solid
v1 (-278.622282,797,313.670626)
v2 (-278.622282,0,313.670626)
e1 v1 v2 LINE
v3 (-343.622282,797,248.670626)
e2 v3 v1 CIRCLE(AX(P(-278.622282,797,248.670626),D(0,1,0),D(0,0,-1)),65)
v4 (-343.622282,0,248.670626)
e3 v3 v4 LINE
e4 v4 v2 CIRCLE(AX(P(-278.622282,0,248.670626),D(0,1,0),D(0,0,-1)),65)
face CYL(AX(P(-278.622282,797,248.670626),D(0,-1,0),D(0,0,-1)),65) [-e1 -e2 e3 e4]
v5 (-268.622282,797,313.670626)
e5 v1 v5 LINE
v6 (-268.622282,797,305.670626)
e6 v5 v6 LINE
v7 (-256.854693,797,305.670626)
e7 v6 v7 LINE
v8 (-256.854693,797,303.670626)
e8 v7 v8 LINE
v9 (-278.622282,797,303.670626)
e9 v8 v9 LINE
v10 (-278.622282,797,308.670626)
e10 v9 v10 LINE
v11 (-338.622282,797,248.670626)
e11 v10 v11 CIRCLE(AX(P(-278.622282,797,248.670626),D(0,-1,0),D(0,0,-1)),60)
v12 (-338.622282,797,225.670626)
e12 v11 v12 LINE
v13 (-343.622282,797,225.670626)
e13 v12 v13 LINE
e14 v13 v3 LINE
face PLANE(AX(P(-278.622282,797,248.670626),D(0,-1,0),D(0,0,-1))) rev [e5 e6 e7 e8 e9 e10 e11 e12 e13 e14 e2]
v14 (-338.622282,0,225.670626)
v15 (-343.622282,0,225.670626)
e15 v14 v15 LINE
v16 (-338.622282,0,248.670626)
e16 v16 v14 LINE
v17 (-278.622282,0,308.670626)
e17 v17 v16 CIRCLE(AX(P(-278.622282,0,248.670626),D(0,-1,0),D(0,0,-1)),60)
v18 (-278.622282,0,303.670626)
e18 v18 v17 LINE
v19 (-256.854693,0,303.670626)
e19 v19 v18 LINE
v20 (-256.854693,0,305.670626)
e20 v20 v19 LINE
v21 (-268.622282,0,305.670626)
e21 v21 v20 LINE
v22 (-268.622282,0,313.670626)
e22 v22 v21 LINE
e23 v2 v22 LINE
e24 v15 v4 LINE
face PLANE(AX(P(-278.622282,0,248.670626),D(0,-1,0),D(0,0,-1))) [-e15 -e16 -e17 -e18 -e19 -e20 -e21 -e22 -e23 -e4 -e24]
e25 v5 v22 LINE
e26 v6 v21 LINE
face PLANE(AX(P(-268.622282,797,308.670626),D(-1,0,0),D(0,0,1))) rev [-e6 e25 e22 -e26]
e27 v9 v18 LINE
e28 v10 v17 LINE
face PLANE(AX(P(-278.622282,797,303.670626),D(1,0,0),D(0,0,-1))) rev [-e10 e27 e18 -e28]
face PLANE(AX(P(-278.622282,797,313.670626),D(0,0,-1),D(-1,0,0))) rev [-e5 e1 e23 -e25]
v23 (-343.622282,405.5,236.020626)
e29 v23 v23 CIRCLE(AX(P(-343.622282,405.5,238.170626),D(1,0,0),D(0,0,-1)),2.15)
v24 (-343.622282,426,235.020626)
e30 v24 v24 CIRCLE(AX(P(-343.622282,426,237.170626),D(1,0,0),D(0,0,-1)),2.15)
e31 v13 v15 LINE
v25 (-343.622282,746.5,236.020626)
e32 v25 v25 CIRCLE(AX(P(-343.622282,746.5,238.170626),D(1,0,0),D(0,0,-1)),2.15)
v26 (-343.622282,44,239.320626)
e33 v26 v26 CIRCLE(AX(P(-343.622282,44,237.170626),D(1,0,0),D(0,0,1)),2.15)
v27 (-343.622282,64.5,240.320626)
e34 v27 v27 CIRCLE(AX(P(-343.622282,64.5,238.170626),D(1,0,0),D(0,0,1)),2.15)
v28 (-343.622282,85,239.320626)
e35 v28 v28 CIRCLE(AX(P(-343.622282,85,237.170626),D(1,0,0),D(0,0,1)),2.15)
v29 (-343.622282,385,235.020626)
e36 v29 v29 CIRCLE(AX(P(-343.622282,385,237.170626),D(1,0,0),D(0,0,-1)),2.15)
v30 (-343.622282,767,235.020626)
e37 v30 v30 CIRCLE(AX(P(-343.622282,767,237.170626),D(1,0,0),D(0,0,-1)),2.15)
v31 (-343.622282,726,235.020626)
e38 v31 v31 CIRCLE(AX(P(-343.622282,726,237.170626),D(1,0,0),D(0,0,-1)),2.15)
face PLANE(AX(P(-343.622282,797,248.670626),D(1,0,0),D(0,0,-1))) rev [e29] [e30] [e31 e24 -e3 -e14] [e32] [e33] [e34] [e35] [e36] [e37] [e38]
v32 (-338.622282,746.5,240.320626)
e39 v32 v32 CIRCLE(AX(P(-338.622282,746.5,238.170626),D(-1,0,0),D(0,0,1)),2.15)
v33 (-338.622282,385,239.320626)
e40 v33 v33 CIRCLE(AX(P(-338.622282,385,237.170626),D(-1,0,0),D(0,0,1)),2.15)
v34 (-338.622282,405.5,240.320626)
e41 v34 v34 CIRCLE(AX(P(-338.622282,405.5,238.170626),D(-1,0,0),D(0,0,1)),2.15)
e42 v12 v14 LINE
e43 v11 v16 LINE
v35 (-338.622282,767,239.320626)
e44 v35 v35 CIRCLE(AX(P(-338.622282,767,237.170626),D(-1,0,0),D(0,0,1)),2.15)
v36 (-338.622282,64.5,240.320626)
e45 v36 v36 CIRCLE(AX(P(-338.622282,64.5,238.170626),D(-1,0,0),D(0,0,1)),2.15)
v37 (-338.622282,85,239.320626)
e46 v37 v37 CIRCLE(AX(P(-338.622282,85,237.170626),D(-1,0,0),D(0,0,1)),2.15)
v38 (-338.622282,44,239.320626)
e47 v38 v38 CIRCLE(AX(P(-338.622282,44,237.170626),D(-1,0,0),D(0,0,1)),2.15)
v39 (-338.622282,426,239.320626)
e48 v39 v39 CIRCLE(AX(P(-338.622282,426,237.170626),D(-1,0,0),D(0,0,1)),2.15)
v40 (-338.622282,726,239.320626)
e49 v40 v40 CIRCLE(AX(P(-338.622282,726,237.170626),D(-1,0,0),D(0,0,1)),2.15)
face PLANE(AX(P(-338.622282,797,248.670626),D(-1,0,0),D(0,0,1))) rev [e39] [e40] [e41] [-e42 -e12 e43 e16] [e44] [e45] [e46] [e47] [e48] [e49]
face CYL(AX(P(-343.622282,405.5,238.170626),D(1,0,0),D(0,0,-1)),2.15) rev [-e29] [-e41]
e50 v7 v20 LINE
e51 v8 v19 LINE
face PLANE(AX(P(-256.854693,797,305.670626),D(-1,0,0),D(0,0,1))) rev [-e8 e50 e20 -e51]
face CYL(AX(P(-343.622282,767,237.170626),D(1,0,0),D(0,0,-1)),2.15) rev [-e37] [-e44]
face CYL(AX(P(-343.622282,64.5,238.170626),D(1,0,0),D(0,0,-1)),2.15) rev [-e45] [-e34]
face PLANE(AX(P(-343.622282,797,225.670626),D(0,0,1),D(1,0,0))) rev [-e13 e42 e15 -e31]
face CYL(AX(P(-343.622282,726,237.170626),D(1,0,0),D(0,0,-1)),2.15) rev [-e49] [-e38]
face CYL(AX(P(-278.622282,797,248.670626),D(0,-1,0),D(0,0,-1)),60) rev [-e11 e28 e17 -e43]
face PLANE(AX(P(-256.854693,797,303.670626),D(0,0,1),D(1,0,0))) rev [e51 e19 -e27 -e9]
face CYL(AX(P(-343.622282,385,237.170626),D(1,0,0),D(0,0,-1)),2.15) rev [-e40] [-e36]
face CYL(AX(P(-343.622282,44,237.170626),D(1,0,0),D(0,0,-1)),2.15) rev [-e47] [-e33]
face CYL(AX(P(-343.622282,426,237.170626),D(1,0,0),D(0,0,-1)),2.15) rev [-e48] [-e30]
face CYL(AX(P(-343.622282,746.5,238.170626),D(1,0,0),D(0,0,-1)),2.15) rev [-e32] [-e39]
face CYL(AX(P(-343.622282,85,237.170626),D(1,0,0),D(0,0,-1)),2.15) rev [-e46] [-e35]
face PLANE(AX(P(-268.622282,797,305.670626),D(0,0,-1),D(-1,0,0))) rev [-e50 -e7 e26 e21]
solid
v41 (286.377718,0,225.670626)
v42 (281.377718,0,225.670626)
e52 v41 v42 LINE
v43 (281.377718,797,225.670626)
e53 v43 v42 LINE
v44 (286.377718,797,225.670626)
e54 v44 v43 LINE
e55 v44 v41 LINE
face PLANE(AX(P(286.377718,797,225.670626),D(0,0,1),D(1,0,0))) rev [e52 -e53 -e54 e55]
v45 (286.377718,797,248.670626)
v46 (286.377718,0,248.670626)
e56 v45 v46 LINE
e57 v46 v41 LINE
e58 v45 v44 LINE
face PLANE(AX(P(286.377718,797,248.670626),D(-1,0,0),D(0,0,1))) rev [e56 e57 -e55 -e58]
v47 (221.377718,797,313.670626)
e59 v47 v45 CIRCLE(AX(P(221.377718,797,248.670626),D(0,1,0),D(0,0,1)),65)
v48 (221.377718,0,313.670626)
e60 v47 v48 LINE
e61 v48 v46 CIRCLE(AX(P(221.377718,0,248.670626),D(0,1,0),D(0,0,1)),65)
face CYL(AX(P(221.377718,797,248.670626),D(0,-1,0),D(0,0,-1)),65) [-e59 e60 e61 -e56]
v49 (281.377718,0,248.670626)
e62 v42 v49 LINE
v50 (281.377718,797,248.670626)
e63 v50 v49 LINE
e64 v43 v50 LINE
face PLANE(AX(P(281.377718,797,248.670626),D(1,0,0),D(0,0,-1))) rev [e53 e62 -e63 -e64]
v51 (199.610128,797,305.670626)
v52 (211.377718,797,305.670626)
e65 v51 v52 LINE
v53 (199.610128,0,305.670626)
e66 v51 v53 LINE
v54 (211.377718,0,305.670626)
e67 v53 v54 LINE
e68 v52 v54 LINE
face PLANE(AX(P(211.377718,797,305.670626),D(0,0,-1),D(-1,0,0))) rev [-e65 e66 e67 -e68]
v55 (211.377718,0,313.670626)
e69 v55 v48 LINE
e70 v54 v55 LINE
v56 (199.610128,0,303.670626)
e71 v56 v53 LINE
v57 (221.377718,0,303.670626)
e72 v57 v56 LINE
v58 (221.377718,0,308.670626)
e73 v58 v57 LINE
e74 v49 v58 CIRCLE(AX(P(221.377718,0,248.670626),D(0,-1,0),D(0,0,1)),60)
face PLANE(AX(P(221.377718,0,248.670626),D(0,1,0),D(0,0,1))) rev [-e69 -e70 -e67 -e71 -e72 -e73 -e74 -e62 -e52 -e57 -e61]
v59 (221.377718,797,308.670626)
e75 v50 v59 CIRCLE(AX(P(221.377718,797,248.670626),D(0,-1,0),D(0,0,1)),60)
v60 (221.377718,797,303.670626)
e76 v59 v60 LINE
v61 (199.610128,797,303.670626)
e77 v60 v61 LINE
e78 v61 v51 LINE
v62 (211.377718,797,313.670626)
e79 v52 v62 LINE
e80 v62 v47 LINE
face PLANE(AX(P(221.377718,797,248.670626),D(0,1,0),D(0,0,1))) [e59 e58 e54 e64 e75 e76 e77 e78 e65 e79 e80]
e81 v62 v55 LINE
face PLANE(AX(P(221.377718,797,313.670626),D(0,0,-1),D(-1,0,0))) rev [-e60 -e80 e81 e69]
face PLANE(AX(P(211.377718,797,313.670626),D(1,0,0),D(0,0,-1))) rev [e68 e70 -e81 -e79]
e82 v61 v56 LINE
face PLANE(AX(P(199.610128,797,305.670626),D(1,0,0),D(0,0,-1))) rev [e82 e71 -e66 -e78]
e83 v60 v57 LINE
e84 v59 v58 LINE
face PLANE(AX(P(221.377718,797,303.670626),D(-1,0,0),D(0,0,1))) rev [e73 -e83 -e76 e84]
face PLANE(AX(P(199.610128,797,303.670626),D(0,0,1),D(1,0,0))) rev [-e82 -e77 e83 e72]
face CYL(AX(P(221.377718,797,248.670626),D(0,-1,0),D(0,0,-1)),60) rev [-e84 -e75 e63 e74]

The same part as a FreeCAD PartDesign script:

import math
import FreeCAD as App
import Part
import Sketcher
Q = App.Units.Quantity

doc = App.newDocument("Part")
body = doc.addObject("PartDesign::Body", "Body")

sketch1 = doc.addObject("Sketcher::SketchObject", "Sketch")
body.addObject(sketch1)
sketch1.AttachmentSupport = (doc.XZ_Plane, [""])
sketch1.MapMode = "FlatFace"
sketch1.addGeometry([
    Part.LineSegment(App.Vector(-278.6, 303.7, 0), App.Vector(-278.6, 308.7, 0)),
    Part.ArcOfCircle(Part.Circle(App.Vector(-278.6, 248.7, 0), App.Vector(0, 0, 1), 60), math.radians(90), math.radians(180)),
    Part.LineSegment(App.Vector(-338.6, 248.7, 0), App.Vector(-338.6, 225.7, 0)),
    Part.LineSegment(App.Vector(-338.6, 225.7, 0), App.Vector(-343.6, 225.7, 0)),
    Part.LineSegment(App.Vector(-343.6, 225.7, 0), App.Vector(-343.6, 248.7, 0)),
    Part.ArcOfCircle(Part.Circle(App.Vector(-278.6, 248.7, 0), App.Vector(0, 0, 1), 65), math.radians(90), math.radians(180)),
    Part.LineSegment(App.Vector(-278.6, 313.7, 0), App.Vector(-268.6, 313.7, 0)),
    Part.LineSegment(App.Vector(-268.6, 313.7, 0), App.Vector(-268.6, 305.7, 0)),
    Part.LineSegment(App.Vector(-268.6, 305.7, 0), App.Vector(-256.9, 305.7, 0)),
    Part.LineSegment(App.Vector(-256.9, 305.7, 0), App.Vector(-256.9, 303.7, 0)),
    Part.LineSegment(App.Vector(-256.9, 303.7, 0), App.Vector(-278.6, 303.7, 0)),
], False)
sketch1.addConstraint([
    Sketcher.Constraint("Coincident", 0, 2, 1, 1),
    Sketcher.Constraint("Tangent", 1, 2, 2, 1),
    Sketcher.Constraint("Coincident", 2, 2, 3, 1),
    Sketcher.Constraint("Coincident", 3, 2, 4, 1),
    Sketcher.Constraint("Tangent", 4, 2, 5, 2),
    Sketcher.Constraint("Tangent", 5, 1, 6, 1),
    Sketcher.Constraint("Coincident", 6, 2, 7, 1),
    Sketcher.Constraint("Coincident", 7, 2, 8, 1),
    Sketcher.Constraint("Coincident", 8, 2, 9, 1),
    Sketcher.Constraint("Coincident", 9, 2, 10, 1),
    Sketcher.Constraint("Coincident", 10, 2, 0, 1),
    Sketcher.Constraint("Vertical", 0),
    Sketcher.Constraint("Vertical", 2),
    Sketcher.Constraint("Horizontal", 3),
    Sketcher.Constraint("Vertical", 4),
    Sketcher.Constraint("Horizontal", 6),
    Sketcher.Constraint("Vertical", 7),
    Sketcher.Constraint("Horizontal", 8),
    Sketcher.Constraint("Vertical", 9),
    Sketcher.Constraint("Horizontal", 10),
    Sketcher.Constraint("Coincident", 5, 3, 1, 3),
    Sketcher.Constraint("Vertical", 5, 3, 0, 2),
    Sketcher.Constraint("Equal", 3, 0),
    Sketcher.Constraint("Radius", 1, Q("60 mm")),
    Sketcher.Constraint("Radius", 5, Q("65 mm")),
    Sketcher.Constraint("DistanceX", 6, 1, 6, 2, Q("10 mm")),
    Sketcher.Constraint("DistanceY", 2, 2, 2, 1, Q("23 mm")),
    Sketcher.Constraint("DistanceY", 7, 2, 7, 1, Q("8 mm")),
    Sketcher.Constraint("DistanceX", 8, 1, 8, 2, Q("11.767589 mm")),
    Sketcher.Constraint("DistanceX", 1, 3, -1, 1, Q("278.622282 mm")),
    Sketcher.Constraint("DistanceY", -1, 1, 1, 3, Q("248.670626 mm")),
])
pad1 = doc.addObject("PartDesign::Pad", "Pad")
body.addObject(pad1)
pad1.Profile = sketch1
pad1.Length = 797
pad1.Reversed = True

sketch2 = doc.addObject("Sketcher::SketchObject", "Sketch001")
body.addObject(sketch2)
sketch2.AttachmentSupport = (doc.YZ_Plane, [""])
sketch2.MapMode = "FlatFace"
sketch2.AttachmentOffset = App.Placement(App.Vector(0, 0, -338.622282), App.Rotation())
sketch2.addGeometry([
    Part.Circle(App.Vector(767, 237.2, 0), App.Vector(0, 0, 1), 2.1),
    Part.Circle(App.Vector(746.5, 238.2, 0), App.Vector(0, 0, 1), 2.1),
    Part.Circle(App.Vector(726, 237.2, 0), App.Vector(0, 0, 1), 2.1),
    Part.Circle(App.Vector(85, 237.2, 0), App.Vector(0, 0, 1), 2.1),
    Part.Circle(App.Vector(64.5, 238.2, 0), App.Vector(0, 0, 1), 2.1),
    Part.Circle(App.Vector(44, 237.2, 0), App.Vector(0, 0, 1), 2.1),
    Part.Circle(App.Vector(426, 237.2, 0), App.Vector(0, 0, 1), 2.1),
    Part.Circle(App.Vector(405.5, 238.2, 0), App.Vector(0, 0, 1), 2.1),
    Part.Circle(App.Vector(385, 237.2, 0), App.Vector(0, 0, 1), 2.1),
], False)
sketch2.addConstraint([
    Sketcher.Constraint("Equal", 0, 1),
    Sketcher.Constraint("Equal", 1, 2),
    Sketcher.Constraint("Equal", 2, 3),
    Sketcher.Constraint("Equal", 3, 4),
    Sketcher.Constraint("Equal", 4, 5),
    Sketcher.Constraint("Equal", 5, 6),
    Sketcher.Constraint("Equal", 6, 7),
    Sketcher.Constraint("Equal", 7, 8),
    Sketcher.Constraint("Horizontal", 0, 3, 2, 3),
    Sketcher.Constraint("Horizontal", 2, 3, 3, 3),
    Sketcher.Constraint("Horizontal", 1, 3, 4, 3),
    Sketcher.Constraint("Horizontal", 3, 3, 5, 3),
    Sketcher.Constraint("Horizontal", 5, 3, 6, 3),
    Sketcher.Constraint("Horizontal", 4, 3, 7, 3),
    Sketcher.Constraint("Horizontal", 6, 3, 8, 3),
    Sketcher.Constraint("Diameter", 0, Q("4.3 mm")),
    Sketcher.Constraint("DistanceX", -1, 1, 0, 3, Q("767 mm")),
    Sketcher.Constraint("DistanceX", -1, 1, 2, 3, Q("726 mm")),
    Sketcher.Constraint("DistanceX", -1, 1, 3, 3, Q("85 mm")),
    Sketcher.Constraint("DistanceX", -1, 1, 5, 3, Q("44 mm")),
    Sketcher.Constraint("DistanceX", -1, 1, 6, 3, Q("426 mm")),
    Sketcher.Constraint("DistanceX", -1, 1, 8, 3, Q("385 mm")),
    Sketcher.Constraint("DistanceY", 0, 3, 1, 3, Q("1 mm")),
    Sketcher.Constraint("DistanceX", 4, 3, 1, 3, Q("682 mm")),
    Sketcher.Constraint("DistanceX", 7, 3, 1, 3, Q("341 mm")),
    Sketcher.Constraint("DistanceX", -1, 1, 1, 3, Q("746.5 mm")),
    Sketcher.Constraint("DistanceY", -1, 1, 0, 3, Q("237.170626 mm")),
])
pocket1 = doc.addObject("PartDesign::Pocket", "Pocket")
body.addObject(pocket1)
pocket1.Profile = sketch2
pocket1.Type = "ThroughAll"
pocket1.Midplane = True
body2 = doc.addObject("PartDesign::Body", "Body001")

sketch3 = doc.addObject("Sketcher::SketchObject", "Sketch002")
body2.addObject(sketch3)
sketch3.AttachmentSupport = (doc.getObject("XZ_Plane001"), [""])
sketch3.MapMode = "FlatFace"
sketch3.addGeometry([
    Part.LineSegment(App.Vector(281.4, 225.7, 0), App.Vector(281.4, 248.7, 0)),
    Part.ArcOfCircle(Part.Circle(App.Vector(221.4, 248.7, 0), App.Vector(0, 0, 1), 60), math.radians(0), math.radians(90)),
    Part.LineSegment(App.Vector(221.4, 308.7, 0), App.Vector(221.4, 303.7, 0)),
    Part.LineSegment(App.Vector(221.4, 303.7, 0), App.Vector(199.6, 303.7, 0)),
    Part.LineSegment(App.Vector(199.6, 303.7, 0), App.Vector(199.6, 305.7, 0)),
    Part.LineSegment(App.Vector(199.6, 305.7, 0), App.Vector(211.4, 305.7, 0)),
    Part.LineSegment(App.Vector(211.4, 305.7, 0), App.Vector(211.4, 313.7, 0)),
    Part.LineSegment(App.Vector(211.4, 313.7, 0), App.Vector(221.4, 313.7, 0)),
    Part.ArcOfCircle(Part.Circle(App.Vector(221.4, 248.7, 0), App.Vector(0, 0, 1), 65), math.radians(0), math.radians(90)),
    Part.LineSegment(App.Vector(286.4, 248.7, 0), App.Vector(286.4, 225.7, 0)),
    Part.LineSegment(App.Vector(286.4, 225.7, 0), App.Vector(281.4, 225.7, 0)),
], False)
sketch3.addConstraint([
    Sketcher.Constraint("Tangent", 0, 2, 1, 1),
    Sketcher.Constraint("Coincident", 1, 2, 2, 1),
    Sketcher.Constraint("Coincident", 2, 2, 3, 1),
    Sketcher.Constraint("Coincident", 3, 2, 4, 1),
    Sketcher.Constraint("Coincident", 4, 2, 5, 1),
    Sketcher.Constraint("Coincident", 5, 2, 6, 1),
    Sketcher.Constraint("Coincident", 6, 2, 7, 1),
    Sketcher.Constraint("Tangent", 7, 2, 8, 2),
    Sketcher.Constraint("Tangent", 8, 1, 9, 1),
    Sketcher.Constraint("Coincident", 9, 2, 10, 1),
    Sketcher.Constraint("Coincident", 10, 2, 0, 1),
    Sketcher.Constraint("Vertical", 0),
    Sketcher.Constraint("Vertical", 2),
    Sketcher.Constraint("Horizontal", 3),
    Sketcher.Constraint("Vertical", 4),
    Sketcher.Constraint("Horizontal", 5),
    Sketcher.Constraint("Vertical", 6),
    Sketcher.Constraint("Horizontal", 7),
    Sketcher.Constraint("Vertical", 9),
    Sketcher.Constraint("Horizontal", 10),
    Sketcher.Constraint("Coincident", 8, 3, 1, 3),
    Sketcher.Constraint("Vertical", 8, 3, 1, 2),
    Sketcher.Constraint("Equal", 10, 2),
    Sketcher.Constraint("Radius", 1, Q("60 mm")),
    Sketcher.Constraint("Radius", 8, Q("65 mm")),
    Sketcher.Constraint("DistanceX", 7, 1, 7, 2, Q("10 mm")),
    Sketcher.Constraint("DistanceY", 0, 1, 0, 2, Q("23 mm")),
    Sketcher.Constraint("DistanceY", 4, 1, 4, 2, Q("2 mm")),
    Sketcher.Constraint("DistanceX", 3, 2, 3, 1, Q("21.767589 mm")),
    Sketcher.Constraint("DistanceX", -1, 1, 3, 2, Q("199.610128 mm")),
    Sketcher.Constraint("DistanceY", -1, 1, 1, 3, Q("248.670626 mm")),
])
pad2 = doc.addObject("PartDesign::Pad", "Pad001")
body2.addObject(pad2)
pad2.Profile = sketch3
pad2.Length = 797
pad2.Reversed = True

doc.recompute()
